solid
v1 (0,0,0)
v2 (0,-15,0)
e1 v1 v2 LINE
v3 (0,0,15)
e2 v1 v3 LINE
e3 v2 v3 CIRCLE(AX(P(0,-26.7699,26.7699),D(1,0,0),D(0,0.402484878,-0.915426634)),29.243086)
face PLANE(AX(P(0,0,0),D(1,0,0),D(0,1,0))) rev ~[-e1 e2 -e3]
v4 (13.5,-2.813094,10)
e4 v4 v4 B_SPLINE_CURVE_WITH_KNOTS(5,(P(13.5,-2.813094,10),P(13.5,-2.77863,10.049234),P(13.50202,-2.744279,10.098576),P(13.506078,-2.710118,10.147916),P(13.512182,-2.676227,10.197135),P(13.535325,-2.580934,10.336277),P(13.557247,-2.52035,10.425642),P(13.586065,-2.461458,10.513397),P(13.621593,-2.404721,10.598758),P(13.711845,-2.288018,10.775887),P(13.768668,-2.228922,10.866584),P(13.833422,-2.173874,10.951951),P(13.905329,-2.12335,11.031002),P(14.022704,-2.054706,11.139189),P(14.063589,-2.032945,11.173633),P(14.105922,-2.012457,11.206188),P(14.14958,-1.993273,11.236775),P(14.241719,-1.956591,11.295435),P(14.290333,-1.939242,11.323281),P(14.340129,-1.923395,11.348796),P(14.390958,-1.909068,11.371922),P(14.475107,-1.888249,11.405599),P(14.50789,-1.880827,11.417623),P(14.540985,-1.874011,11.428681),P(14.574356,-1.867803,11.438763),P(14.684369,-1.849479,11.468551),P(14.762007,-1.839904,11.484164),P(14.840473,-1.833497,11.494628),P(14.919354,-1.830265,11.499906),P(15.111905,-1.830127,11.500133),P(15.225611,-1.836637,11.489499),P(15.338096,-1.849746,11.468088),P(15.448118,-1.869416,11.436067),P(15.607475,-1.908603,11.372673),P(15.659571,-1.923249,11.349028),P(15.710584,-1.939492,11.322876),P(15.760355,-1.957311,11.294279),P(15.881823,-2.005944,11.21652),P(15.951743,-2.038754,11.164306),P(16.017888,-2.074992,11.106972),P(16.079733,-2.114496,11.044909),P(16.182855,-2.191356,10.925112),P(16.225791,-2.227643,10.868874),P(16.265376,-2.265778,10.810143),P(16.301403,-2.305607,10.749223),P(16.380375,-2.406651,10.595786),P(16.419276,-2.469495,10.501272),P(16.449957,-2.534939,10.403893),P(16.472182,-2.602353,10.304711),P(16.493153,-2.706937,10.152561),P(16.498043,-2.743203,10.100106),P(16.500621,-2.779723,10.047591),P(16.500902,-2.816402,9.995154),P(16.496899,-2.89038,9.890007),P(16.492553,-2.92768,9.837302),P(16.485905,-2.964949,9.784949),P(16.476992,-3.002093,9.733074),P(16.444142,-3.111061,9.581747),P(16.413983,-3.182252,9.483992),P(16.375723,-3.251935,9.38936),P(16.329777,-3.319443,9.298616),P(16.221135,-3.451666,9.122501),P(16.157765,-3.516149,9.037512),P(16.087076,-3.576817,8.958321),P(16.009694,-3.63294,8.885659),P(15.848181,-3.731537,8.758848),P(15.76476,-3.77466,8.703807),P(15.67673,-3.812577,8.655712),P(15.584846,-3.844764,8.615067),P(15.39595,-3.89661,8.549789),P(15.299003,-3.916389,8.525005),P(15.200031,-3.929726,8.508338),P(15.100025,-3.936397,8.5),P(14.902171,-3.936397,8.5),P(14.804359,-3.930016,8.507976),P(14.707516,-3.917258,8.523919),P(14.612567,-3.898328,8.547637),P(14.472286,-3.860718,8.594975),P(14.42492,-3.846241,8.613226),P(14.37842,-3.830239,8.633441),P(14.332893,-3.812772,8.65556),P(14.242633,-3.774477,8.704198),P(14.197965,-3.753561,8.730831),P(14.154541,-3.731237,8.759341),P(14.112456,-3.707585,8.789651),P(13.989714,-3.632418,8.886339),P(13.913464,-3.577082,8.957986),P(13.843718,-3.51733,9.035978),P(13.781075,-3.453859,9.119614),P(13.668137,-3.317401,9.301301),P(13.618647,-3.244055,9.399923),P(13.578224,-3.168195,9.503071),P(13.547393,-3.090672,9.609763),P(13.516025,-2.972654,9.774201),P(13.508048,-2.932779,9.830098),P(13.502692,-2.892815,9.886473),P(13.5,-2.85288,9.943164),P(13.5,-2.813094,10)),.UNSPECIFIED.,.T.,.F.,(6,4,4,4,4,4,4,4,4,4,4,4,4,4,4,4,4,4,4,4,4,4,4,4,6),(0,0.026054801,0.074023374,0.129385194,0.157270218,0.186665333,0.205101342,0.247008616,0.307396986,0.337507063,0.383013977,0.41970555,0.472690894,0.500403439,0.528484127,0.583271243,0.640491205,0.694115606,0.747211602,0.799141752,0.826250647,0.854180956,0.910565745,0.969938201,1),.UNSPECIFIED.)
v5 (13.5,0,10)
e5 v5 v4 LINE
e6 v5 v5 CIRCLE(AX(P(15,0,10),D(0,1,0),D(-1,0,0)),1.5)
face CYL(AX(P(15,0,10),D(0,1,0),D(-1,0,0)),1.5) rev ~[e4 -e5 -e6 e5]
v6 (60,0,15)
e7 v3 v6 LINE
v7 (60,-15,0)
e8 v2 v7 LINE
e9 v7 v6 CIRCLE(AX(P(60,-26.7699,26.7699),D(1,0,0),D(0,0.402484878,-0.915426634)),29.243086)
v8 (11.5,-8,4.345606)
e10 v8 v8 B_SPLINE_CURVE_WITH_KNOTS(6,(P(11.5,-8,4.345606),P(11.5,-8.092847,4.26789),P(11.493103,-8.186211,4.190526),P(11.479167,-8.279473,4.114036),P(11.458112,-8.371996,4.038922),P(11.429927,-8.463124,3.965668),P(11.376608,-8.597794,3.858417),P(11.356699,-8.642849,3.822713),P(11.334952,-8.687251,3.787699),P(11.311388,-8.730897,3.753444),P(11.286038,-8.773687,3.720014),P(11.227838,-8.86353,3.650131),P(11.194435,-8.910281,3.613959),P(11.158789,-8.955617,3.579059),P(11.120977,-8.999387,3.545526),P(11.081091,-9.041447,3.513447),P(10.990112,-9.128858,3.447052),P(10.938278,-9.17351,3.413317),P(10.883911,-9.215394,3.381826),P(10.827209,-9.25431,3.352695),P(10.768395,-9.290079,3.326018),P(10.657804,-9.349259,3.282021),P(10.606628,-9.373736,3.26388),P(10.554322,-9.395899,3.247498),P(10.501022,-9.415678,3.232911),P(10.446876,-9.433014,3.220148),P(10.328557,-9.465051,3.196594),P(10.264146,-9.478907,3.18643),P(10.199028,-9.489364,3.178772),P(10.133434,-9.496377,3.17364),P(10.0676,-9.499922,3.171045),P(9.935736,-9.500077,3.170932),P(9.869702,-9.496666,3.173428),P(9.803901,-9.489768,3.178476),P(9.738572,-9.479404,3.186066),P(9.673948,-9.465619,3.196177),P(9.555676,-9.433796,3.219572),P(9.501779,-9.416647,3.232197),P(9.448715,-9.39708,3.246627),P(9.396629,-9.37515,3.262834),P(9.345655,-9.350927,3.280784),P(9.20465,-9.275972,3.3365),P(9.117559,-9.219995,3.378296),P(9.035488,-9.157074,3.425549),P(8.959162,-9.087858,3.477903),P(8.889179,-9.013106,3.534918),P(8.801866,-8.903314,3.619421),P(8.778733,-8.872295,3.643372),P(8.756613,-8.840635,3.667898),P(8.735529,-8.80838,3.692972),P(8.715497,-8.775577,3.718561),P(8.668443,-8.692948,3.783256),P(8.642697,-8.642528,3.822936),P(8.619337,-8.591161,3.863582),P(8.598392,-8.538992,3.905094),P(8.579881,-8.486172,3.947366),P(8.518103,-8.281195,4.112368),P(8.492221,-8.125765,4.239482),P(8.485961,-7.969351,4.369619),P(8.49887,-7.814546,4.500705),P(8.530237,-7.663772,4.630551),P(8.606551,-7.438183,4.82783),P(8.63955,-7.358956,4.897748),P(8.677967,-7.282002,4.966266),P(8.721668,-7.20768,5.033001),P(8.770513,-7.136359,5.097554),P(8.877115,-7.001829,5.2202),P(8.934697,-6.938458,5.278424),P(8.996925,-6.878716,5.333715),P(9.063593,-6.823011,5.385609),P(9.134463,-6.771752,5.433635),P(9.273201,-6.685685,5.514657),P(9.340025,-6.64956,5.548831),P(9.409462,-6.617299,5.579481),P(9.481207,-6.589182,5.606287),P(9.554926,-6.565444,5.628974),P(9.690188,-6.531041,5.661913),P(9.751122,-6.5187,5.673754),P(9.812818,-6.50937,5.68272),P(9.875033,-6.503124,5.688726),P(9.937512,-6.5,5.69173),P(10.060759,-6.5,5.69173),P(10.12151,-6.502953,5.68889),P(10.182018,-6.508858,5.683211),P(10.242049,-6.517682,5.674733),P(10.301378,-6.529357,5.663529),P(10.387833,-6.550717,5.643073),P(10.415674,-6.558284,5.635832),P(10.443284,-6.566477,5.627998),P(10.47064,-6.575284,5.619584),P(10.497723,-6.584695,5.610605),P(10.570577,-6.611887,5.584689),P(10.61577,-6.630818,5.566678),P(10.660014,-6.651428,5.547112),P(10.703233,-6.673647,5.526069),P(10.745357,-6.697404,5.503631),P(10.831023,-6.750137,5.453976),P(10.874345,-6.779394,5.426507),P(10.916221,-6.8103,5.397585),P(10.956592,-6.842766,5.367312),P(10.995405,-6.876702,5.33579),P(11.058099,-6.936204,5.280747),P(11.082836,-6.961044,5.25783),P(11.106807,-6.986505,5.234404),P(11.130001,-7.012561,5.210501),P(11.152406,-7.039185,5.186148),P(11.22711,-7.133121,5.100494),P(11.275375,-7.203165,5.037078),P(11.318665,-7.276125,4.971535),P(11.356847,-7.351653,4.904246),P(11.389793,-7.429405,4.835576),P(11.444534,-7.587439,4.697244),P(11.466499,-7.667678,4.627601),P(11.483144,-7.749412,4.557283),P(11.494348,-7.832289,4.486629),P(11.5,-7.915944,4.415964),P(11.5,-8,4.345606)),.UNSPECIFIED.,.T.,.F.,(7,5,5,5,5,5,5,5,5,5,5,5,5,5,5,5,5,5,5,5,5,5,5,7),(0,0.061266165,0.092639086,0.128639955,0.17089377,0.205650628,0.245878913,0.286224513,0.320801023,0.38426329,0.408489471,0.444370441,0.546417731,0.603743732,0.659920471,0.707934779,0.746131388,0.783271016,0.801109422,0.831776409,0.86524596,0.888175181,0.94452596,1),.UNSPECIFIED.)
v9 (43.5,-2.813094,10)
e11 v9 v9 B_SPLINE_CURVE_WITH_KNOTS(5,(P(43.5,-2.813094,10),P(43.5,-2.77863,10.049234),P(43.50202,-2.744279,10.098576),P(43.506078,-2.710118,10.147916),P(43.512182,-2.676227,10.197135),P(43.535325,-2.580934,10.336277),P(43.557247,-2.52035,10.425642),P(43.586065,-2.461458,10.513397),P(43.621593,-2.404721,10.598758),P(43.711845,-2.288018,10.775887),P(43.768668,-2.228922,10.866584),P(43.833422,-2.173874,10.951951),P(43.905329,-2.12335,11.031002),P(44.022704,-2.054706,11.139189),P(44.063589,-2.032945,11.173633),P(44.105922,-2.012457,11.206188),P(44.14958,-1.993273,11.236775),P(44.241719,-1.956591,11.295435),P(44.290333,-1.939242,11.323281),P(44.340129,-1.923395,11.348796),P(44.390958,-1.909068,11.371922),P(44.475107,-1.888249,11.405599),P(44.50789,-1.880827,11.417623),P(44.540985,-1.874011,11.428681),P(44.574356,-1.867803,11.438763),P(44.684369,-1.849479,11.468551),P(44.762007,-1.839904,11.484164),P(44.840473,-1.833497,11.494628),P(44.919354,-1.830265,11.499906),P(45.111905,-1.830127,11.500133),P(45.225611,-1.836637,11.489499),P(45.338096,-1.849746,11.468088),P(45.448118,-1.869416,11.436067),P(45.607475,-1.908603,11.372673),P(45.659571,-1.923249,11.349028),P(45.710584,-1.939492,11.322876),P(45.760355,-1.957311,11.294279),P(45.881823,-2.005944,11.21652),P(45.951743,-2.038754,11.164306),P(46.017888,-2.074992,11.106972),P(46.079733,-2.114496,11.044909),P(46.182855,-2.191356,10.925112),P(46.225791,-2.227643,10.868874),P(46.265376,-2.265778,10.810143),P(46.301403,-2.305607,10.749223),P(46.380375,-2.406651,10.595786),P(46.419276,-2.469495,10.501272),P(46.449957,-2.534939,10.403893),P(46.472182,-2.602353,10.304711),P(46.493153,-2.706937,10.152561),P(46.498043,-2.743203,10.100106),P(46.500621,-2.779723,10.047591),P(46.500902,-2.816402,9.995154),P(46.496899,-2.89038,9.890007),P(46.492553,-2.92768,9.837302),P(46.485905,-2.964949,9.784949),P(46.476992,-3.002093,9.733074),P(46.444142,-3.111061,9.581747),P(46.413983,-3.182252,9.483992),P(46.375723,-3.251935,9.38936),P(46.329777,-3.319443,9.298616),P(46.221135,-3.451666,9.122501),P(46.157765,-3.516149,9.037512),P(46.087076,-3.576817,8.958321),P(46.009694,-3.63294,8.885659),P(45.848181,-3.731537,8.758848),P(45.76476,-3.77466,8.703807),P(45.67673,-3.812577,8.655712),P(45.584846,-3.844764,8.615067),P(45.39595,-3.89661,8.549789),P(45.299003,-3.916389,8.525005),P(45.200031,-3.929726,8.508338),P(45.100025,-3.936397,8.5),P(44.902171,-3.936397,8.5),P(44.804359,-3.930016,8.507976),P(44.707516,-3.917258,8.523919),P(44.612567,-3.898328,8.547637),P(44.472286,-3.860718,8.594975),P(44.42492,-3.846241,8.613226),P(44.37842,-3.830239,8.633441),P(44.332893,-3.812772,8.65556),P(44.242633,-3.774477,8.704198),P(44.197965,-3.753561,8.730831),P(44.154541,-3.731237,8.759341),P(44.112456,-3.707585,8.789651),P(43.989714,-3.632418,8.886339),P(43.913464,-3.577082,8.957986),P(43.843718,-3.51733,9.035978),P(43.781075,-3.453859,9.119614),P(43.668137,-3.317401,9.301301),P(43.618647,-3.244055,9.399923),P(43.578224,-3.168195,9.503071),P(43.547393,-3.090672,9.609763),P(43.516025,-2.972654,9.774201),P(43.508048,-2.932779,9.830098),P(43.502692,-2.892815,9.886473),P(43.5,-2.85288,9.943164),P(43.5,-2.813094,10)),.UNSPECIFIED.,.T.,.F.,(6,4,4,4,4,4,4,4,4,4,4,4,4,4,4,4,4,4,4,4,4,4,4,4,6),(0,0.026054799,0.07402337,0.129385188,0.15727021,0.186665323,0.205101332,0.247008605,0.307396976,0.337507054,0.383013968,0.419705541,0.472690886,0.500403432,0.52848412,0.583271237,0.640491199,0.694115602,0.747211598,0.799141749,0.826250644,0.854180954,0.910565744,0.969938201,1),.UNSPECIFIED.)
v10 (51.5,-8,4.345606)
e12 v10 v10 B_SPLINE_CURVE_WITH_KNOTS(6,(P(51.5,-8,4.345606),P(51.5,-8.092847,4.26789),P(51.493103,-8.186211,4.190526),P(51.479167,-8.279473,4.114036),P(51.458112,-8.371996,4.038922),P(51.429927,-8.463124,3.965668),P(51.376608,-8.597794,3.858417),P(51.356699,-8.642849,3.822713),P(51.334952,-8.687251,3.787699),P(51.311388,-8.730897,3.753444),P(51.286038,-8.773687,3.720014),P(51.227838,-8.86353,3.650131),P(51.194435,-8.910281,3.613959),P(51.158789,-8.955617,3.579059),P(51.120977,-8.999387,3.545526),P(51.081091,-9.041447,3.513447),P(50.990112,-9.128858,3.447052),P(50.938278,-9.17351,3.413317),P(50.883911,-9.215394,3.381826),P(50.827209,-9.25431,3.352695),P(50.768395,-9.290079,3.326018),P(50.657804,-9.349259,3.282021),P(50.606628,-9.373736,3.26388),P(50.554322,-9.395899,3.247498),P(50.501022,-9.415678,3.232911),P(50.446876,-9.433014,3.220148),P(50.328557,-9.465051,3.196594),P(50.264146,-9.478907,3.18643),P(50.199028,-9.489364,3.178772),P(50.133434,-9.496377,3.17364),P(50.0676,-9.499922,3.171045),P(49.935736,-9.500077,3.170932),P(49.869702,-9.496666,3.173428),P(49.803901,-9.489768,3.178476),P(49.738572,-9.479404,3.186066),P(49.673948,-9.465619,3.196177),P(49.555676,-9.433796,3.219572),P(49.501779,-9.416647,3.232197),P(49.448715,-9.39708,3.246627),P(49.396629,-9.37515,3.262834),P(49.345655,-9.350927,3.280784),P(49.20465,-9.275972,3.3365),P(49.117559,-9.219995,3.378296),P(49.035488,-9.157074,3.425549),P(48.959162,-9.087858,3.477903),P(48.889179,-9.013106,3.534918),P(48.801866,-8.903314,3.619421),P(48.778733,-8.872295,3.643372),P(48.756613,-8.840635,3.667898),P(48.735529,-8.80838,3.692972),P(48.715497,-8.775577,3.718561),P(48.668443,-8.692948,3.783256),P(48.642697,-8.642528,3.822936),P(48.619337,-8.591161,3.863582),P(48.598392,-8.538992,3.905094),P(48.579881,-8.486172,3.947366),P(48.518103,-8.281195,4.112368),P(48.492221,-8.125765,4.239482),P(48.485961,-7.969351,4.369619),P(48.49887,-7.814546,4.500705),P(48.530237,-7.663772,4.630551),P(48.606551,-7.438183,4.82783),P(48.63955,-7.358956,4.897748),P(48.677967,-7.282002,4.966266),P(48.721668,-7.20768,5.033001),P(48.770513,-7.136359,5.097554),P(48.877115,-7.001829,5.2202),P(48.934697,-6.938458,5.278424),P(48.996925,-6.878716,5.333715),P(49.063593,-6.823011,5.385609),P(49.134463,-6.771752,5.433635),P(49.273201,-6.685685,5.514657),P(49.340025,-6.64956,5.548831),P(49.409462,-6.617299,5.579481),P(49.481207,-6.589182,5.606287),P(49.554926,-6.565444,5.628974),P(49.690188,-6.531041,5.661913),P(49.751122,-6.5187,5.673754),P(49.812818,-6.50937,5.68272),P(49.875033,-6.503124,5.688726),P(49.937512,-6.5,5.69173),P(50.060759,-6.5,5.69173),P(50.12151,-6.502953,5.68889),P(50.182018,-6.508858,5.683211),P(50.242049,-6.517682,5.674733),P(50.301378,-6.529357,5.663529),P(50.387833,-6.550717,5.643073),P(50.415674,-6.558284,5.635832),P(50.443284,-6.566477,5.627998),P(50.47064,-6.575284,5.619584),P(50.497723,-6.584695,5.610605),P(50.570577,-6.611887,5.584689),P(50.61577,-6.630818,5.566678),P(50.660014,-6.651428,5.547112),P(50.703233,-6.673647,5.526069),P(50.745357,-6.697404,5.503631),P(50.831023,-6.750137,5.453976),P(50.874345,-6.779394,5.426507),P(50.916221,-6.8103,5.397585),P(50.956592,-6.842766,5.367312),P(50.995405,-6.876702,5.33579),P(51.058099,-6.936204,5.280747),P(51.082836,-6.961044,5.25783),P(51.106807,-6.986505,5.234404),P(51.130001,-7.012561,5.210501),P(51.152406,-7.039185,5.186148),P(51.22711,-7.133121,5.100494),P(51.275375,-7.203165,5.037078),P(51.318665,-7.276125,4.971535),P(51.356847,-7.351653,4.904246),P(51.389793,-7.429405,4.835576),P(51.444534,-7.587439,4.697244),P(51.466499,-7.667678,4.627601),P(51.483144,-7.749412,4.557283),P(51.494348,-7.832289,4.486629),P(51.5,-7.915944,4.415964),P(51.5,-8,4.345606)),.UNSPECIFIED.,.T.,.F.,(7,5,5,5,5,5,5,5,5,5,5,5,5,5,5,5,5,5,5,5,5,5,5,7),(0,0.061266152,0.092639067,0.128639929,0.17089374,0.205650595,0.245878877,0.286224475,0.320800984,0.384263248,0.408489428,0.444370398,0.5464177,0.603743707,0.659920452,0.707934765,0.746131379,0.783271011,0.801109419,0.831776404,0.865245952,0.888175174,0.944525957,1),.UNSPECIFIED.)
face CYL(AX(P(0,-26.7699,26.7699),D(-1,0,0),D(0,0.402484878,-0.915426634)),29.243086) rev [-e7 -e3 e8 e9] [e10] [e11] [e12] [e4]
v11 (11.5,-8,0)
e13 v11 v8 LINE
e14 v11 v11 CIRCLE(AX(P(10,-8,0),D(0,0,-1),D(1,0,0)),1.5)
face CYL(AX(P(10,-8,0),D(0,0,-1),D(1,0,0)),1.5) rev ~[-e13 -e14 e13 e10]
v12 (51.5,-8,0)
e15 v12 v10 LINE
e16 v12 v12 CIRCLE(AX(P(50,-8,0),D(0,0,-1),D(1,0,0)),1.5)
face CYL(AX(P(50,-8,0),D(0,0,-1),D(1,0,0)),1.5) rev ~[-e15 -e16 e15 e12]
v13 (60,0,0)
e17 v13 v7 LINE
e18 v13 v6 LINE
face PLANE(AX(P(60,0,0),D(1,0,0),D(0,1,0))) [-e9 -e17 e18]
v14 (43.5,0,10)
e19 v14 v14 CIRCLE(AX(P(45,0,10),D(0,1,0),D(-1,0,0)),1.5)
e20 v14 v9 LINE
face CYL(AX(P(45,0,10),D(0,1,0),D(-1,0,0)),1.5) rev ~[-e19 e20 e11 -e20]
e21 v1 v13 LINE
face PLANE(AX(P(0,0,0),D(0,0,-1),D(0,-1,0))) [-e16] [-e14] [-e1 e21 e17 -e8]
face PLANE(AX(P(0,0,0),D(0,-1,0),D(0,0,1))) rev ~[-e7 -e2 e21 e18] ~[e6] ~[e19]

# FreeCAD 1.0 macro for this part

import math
import FreeCAD as App
import Part
import Sketcher

V = App.Vector
Q = App.Units.Quantity

doc = App.newDocument("Part")
body = doc.addObject("PartDesign::Body", "Body")

# Sketch on YZ plane
sketch1 = body.newObject("Sketcher::SketchObject", "Sketch")
sketch1.AttachmentSupport = (doc.getObject("YZ_Plane"), [""])
sketch1.MapMode = "FlatFace"
sketch1.addGeometry([
    Part.LineSegment(V(-15, 0, 0), V(0, 0, 0)),
    Part.LineSegment(V(0, 0, 0), V(0, 15, 0)),
    Part.ArcOfCircle(Part.Circle(V(-27, 27, 0), V(0, 0, 1), 29), math.radians(-66), math.radians(-24)),
], False)
sketch1.addConstraint([
    Sketcher.Constraint("Coincident", 0, 2, 1, 1),
    Sketcher.Constraint("Coincident", 1, 2, 2, 2),
    Sketcher.Constraint("Coincident", 2, 1, 0, 1),
    Sketcher.Constraint("Horizontal", 0),
    Sketcher.Constraint("Vertical", 1),
    Sketcher.Constraint("Coincident", 0, 2, -1, 1),
    Sketcher.Constraint("Equal", 0, 1),
    Sketcher.Constraint("DistanceX", 0, 1, 0, 2, Q("15 mm")),
    Sketcher.Constraint("Radius", 2, Q("29.243 mm")),
])
pad1 = body.newObject("PartDesign::Pad", "Pad")
pad1.Profile = sketch1
pad1.Length = 60

# Sketch on XZ plane
sketch2 = body.newObject("Sketcher::SketchObject", "Sketch001")
sketch2.AttachmentSupport = (doc.getObject("XZ_Plane"), [""])
sketch2.MapMode = "FlatFace"
sketch2.addGeometry([
    Part.Circle(V(45, 10, 0), V(0, 0, 1), 1.5),
    Part.Circle(V(15, 10, 0), V(0, 0, 1), 1.5),
], False)
sketch2.addConstraint([
    Sketcher.Constraint("Equal", 0, 1),
    Sketcher.Constraint("Horizontal", 0, 3, 1, 3),
    Sketcher.Constraint("Diameter", 0, Q("3 mm")),
    Sketcher.Constraint("DistanceX", -1, 1, 0, 3, Q("45 mm")),
    Sketcher.Constraint("DistanceY", -1, 1, 0, 3, Q("10 mm")),
    Sketcher.Constraint("DistanceX", -1, 1, 1, 3, Q("15 mm")),
])
pocket1 = body.newObject("PartDesign::Pocket", "Pocket")
pocket1.Profile = sketch2
pocket1.Length = 4
pocket1.Reversed = True

# Sketch on XY plane
sketch3 = body.newObject("Sketcher::SketchObject", "Sketch002")
sketch3.AttachmentSupport = (doc.getObject("XY_Plane"), [""])
sketch3.MapMode = "FlatFace"
sketch3.addGeometry([
    Part.Circle(V(10, -8, 0), V(0, 0, 1), 1.5),
    Part.Circle(V(50, -8, 0), V(0, 0, 1), 1.5),
], False)
sketch3.addConstraint([
    Sketcher.Constraint("Equal", 0, 1),
    Sketcher.Constraint("Horizontal", 0, 3, 1, 3),
    Sketcher.Constraint("Diameter", 0, Q("3 mm")),
    Sketcher.Constraint("DistanceX", -1, 1, 0, 3, Q("10 mm")),
    Sketcher.Constraint("DistanceY", 0, 3, -1, 1, Q("8 mm")),
    Sketcher.Constraint("DistanceX", -1, 1, 1, 3, Q("50 mm")),
])
pocket2 = body.newObject("PartDesign::Pocket", "Pocket001")
pocket2.Profile = sketch3
pocket2.Length = 6
pocket2.Reversed = True

doc.recompute()
